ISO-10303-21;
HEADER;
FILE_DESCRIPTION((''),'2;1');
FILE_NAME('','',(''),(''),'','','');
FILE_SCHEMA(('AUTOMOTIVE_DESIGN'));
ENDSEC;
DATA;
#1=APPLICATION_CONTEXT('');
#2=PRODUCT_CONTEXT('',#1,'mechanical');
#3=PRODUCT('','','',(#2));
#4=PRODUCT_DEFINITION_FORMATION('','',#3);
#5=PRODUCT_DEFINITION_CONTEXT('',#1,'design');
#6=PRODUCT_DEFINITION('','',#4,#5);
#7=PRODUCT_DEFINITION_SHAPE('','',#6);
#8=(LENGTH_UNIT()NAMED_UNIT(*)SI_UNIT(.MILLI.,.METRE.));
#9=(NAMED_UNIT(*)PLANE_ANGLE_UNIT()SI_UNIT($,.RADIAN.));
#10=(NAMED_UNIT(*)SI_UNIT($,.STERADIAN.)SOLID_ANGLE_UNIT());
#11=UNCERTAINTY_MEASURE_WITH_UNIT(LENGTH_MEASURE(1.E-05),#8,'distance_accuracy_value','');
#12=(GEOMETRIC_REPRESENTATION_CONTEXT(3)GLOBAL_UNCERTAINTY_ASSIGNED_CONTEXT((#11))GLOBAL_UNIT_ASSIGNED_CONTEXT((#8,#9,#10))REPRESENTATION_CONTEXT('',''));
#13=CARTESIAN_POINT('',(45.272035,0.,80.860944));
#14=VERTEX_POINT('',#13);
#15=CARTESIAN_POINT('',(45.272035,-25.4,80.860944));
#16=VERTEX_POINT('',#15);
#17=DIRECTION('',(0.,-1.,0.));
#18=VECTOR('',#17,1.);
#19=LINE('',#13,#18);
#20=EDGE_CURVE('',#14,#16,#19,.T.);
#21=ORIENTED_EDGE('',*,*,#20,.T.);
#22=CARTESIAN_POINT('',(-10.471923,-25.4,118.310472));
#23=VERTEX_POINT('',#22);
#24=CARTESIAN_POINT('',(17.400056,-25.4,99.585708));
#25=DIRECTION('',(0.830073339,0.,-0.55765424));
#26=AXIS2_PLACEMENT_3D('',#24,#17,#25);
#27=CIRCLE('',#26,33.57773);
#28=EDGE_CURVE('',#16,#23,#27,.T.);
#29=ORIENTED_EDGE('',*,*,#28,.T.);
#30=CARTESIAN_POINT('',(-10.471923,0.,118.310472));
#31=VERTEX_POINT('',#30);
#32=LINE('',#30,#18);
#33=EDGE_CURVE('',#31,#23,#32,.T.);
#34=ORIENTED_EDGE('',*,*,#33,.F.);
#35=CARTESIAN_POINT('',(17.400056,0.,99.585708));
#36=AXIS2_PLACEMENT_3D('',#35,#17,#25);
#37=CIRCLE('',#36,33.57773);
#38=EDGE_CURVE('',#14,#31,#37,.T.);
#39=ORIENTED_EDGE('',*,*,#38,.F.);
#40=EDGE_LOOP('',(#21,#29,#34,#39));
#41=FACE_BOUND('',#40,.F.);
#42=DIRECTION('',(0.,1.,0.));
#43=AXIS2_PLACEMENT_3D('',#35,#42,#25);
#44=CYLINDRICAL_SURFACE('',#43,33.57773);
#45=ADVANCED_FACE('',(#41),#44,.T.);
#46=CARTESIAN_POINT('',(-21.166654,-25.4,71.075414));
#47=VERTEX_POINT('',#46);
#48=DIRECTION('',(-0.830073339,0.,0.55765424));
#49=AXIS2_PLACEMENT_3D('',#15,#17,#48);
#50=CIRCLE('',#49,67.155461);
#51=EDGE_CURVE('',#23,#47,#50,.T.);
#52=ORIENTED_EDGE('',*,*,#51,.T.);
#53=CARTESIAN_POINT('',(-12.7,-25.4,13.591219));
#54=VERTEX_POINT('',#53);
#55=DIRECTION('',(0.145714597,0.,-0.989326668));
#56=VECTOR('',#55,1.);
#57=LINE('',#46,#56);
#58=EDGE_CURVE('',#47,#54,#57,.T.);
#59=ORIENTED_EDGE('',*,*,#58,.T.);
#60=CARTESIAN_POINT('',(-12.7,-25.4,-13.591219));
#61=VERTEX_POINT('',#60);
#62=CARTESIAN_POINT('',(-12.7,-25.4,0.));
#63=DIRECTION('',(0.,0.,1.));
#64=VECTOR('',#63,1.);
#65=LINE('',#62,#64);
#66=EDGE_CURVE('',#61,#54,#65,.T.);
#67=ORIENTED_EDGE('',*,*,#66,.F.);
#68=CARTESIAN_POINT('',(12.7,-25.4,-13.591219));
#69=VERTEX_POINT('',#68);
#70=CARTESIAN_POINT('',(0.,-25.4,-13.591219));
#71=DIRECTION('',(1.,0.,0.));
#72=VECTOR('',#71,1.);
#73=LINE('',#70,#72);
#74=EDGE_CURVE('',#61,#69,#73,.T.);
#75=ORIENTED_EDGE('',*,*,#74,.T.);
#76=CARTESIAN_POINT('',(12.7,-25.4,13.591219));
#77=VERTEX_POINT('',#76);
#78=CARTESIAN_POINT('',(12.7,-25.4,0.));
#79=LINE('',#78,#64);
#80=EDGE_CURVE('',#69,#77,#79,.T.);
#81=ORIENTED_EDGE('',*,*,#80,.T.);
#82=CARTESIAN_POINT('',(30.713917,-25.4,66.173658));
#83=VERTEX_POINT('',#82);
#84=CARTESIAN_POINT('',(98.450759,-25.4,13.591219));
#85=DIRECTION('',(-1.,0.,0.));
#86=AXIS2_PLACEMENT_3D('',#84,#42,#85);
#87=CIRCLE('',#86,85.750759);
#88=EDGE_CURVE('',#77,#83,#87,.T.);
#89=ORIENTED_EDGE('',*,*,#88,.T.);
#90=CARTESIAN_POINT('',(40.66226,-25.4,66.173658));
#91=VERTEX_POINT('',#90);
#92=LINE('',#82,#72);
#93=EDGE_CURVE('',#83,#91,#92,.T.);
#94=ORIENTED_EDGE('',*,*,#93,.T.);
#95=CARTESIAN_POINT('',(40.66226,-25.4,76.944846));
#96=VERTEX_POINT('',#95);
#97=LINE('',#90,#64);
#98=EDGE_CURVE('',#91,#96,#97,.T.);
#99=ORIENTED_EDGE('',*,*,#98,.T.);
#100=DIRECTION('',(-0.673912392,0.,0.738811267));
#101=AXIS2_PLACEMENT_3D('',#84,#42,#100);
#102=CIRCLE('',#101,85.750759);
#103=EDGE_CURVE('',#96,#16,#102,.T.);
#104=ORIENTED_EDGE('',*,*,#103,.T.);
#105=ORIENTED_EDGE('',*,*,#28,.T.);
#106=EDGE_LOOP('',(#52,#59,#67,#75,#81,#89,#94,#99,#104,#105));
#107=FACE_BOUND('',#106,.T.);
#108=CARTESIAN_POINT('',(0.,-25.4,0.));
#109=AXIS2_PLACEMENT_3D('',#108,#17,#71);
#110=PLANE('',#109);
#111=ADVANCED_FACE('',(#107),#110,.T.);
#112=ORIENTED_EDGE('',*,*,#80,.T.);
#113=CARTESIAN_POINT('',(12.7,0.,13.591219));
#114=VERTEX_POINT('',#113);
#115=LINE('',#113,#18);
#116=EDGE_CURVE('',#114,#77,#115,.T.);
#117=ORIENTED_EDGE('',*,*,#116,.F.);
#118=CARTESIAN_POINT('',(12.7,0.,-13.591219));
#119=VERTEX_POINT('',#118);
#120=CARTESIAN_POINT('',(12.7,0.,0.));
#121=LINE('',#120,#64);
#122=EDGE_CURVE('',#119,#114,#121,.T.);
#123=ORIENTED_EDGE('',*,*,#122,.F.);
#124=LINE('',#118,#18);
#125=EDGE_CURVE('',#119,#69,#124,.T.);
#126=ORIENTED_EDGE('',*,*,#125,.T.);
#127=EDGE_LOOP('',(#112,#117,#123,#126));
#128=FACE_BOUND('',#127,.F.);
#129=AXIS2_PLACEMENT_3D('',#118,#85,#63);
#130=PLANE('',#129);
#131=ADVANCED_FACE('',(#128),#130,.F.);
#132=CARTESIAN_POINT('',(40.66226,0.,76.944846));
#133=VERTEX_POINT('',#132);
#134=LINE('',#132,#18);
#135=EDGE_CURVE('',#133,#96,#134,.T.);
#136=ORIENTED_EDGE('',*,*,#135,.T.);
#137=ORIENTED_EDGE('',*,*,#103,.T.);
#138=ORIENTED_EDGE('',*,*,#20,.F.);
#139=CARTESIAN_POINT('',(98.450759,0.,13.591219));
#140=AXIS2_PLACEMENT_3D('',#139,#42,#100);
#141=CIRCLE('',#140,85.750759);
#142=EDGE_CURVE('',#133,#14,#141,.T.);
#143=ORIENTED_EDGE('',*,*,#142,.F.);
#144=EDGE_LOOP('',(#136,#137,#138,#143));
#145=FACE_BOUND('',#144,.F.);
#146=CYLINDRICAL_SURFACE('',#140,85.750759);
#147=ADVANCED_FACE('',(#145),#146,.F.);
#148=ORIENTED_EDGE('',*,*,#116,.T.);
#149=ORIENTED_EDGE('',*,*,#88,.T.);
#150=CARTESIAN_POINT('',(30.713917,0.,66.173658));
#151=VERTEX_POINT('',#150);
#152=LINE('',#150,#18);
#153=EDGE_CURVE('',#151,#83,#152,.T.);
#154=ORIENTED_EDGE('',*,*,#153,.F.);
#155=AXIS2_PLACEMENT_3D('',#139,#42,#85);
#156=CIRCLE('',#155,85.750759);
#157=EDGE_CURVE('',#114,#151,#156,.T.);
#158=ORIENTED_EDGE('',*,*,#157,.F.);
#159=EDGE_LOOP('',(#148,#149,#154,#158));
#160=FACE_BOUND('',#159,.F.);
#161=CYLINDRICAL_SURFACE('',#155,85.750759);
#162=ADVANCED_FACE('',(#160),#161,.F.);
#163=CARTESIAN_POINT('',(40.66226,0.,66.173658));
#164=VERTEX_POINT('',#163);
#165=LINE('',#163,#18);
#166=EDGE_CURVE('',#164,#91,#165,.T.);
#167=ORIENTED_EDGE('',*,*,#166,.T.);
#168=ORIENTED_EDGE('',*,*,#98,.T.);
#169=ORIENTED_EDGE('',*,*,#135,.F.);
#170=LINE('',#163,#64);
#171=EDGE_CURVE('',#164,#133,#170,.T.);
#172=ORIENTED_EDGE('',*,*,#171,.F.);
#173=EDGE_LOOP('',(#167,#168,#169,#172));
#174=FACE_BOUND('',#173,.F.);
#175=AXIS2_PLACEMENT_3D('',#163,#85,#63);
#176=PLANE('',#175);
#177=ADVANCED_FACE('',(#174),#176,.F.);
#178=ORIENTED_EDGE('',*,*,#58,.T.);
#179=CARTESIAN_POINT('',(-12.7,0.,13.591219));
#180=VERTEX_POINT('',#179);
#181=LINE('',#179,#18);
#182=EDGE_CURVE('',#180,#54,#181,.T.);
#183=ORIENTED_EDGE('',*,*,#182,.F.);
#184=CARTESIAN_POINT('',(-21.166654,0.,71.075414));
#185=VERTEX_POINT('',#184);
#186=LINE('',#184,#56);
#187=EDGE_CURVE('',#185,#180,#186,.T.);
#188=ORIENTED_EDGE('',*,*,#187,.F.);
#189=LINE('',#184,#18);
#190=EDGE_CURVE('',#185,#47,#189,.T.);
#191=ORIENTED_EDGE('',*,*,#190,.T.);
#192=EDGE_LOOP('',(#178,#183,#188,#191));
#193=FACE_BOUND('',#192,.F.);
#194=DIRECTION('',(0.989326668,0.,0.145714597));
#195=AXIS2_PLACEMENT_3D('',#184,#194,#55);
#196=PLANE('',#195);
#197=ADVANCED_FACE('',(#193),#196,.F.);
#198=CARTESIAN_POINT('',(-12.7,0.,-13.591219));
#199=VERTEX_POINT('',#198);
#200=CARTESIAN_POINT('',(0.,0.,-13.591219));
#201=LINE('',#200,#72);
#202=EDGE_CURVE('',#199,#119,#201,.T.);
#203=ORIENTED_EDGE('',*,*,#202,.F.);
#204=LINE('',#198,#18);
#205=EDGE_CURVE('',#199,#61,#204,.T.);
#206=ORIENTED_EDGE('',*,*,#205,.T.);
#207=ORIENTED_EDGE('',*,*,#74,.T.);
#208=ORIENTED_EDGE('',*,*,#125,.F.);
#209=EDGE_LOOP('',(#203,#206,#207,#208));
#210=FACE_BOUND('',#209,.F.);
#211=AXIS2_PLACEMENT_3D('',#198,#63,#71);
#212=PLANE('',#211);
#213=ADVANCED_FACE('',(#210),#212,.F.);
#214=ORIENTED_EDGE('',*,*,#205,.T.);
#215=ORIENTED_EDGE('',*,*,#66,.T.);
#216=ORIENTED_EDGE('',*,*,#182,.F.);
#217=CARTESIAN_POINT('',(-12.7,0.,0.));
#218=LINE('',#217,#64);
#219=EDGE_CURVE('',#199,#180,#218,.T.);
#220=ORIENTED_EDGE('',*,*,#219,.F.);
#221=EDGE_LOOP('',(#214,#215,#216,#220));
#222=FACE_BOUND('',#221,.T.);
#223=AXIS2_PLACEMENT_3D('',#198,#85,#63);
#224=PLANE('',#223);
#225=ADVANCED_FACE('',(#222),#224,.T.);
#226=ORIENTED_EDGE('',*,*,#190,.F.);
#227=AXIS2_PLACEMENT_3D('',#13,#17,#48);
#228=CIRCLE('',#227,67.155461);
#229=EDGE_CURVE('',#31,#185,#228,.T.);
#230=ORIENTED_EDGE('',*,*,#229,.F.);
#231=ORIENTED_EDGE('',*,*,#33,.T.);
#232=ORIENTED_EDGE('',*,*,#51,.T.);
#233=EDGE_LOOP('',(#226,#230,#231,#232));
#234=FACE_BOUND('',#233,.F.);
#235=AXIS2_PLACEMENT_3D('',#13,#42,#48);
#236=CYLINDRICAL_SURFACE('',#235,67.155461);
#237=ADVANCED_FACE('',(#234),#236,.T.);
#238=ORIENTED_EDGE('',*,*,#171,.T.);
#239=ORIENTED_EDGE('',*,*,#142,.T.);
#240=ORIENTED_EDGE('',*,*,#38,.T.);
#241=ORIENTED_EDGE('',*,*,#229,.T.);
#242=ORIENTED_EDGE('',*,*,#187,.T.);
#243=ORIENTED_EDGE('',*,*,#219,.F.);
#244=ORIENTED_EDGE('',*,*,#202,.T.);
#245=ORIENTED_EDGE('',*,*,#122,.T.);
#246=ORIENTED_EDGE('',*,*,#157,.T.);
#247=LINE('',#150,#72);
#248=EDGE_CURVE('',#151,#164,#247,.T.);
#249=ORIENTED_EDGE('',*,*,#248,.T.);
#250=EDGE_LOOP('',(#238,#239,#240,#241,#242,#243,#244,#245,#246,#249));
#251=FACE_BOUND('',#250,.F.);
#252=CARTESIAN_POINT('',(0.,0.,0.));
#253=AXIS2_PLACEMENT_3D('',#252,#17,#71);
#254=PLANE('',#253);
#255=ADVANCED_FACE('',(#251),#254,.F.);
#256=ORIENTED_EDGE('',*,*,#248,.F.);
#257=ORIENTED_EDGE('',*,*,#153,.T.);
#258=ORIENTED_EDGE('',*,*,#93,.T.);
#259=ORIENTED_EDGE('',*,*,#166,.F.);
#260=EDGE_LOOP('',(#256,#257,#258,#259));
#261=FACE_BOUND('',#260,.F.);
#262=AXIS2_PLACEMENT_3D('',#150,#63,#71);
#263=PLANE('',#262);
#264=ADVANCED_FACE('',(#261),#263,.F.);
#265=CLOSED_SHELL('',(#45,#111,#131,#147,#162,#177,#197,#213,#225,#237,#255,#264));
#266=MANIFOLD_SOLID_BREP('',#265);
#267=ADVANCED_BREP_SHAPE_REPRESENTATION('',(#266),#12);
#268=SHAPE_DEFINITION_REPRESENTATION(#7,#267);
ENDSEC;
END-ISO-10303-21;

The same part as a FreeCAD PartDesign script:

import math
import FreeCAD as App
import Part
import Sketcher
Q = App.Units.Quantity

doc = App.newDocument("Part")
body = doc.addObject("PartDesign::Body", "Body")

# Sketch on XZ plane
sketch1 = body.newObject("Sketcher::SketchObject", "Sketch")
sketch1.AttachmentSupport = (doc.getObject("XZ_Plane"), [""])
sketch1.MapMode = "FlatFace"
sketch1.addGeometry(Part.LineSegment(App.Vector(-13, 14, 0), App.Vector(-13, -14, 0)), False)
sketch1.addGeometry(Part.LineSegment(App.Vector(-13, -14, 0), App.Vector(13, -14, 0)), False)
sketch1.addGeometry(Part.LineSegment(App.Vector(13, -14, 0), App.Vector(13, 14, 0)), False)
sketch1.addGeometry(Part.ArcOfCircle(Part.Circle(App.Vector(98, 14, 0), App.Vector(0, 0, 1), 86), math.radians(142), math.radians(180)), False)
sketch1.addGeometry(Part.LineSegment(App.Vector(31, 66, 0), App.Vector(41, 66, 0)), False)
sketch1.addGeometry(Part.LineSegment(App.Vector(41, 66, 0), App.Vector(41, 77, 0)), False)
sketch1.addGeometry(Part.ArcOfCircle(Part.Circle(App.Vector(98, 14, 0), App.Vector(0, 0, 1), 86), math.radians(128.33), math.radians(132.37)), False)
sketch1.addGeometry(Part.ArcOfCircle(Part.Circle(App.Vector(17, 100, 0), App.Vector(0, 0, 1), 34), math.radians(-34), math.radians(146)), False)
sketch1.addGeometry(Part.ArcOfCircle(Part.Circle(App.Vector(45, 81, 0), App.Vector(0, 0, 1), 67), math.radians(146), math.radians(188)), False)
sketch1.addGeometry(Part.LineSegment(App.Vector(-21, 71, 0), App.Vector(-13, 14, 0)), False)
sketch1.addConstraint(Sketcher.Constraint("Coincident", 0, 2, 1, 1))
sketch1.addConstraint(Sketcher.Constraint("Coincident", 1, 2, 2, 1))
sketch1.addConstraint(Sketcher.Constraint("Tangent", 2, 2, 3, 2))
sketch1.addConstraint(Sketcher.Constraint("Coincident", 3, 1, 4, 1))
sketch1.addConstraint(Sketcher.Constraint("Coincident", 4, 2, 5, 1))
sketch1.addConstraint(Sketcher.Constraint("Coincident", 5, 2, 6, 2))
sketch1.addConstraint(Sketcher.Constraint("Coincident", 6, 1, 7, 1))
sketch1.addConstraint(Sketcher.Constraint("Tangent", 7, 2, 8, 1))
sketch1.addConstraint(Sketcher.Constraint("Tangent", 8, 2, 9, 1))
sketch1.addConstraint(Sketcher.Constraint("Coincident", 9, 2, 0, 1))
sketch1.addConstraint(Sketcher.Constraint("Vertical", 0))
sketch1.addConstraint(Sketcher.Constraint("Horizontal", 1))
sketch1.addConstraint(Sketcher.Constraint("Vertical", 2))
sketch1.addConstraint(Sketcher.Constraint("Horizontal", 4))
sketch1.addConstraint(Sketcher.Constraint("Vertical", 5))
sketch1.addConstraint(Sketcher.Constraint("Coincident", 6, 3, 3, 3))
sketch1.addConstraint(Sketcher.Constraint("Coincident", 6, 1, 8, 3))
sketch1.addConstraint(Sketcher.Constraint("Equal", 3, 6))
sketch1.addConstraint(Sketcher.Constraint("Symmetric", 0, 2, 2, 2, -1, 1))
sketch1.addConstraint(Sketcher.Constraint("Horizontal", 2, 2, 9, 2))
sketch1.addConstraint(Sketcher.Constraint("DistanceX", 1, 1, 1, 2, Q("1 in")))
sketch1.addConstraint(Sketcher.Constraint("Radius", 3, Q("85.750759 mm")))
sketch1.addConstraint(Sketcher.Constraint("Radius", 7, Q("33.57773 mm")))
sketch1.addConstraint(Sketcher.Constraint("DistanceY", 0, 2, 0, 1, Q("27.182439 mm")))
sketch1.addConstraint(Sketcher.Constraint("DistanceY", 5, 1, 5, 2, Q("10.771188 mm")))
sketch1.addConstraint(Sketcher.Constraint("DistanceX", 4, 2, 6, 3, Q("57.788499 mm")))
sketch1.addConstraint(Sketcher.Constraint("DistanceY", 5, 2, 8, 3, Q("3.916098 mm")))
sketch1.addConstraint(Sketcher.Constraint("DistanceY", -1, 1, 7, 3, Q("99.585708 mm")))
pad1 = body.newObject("PartDesign::Pad", "Pad")
pad1.Profile = sketch1
pad1.Length = Q("1 in")

doc.recompute()
